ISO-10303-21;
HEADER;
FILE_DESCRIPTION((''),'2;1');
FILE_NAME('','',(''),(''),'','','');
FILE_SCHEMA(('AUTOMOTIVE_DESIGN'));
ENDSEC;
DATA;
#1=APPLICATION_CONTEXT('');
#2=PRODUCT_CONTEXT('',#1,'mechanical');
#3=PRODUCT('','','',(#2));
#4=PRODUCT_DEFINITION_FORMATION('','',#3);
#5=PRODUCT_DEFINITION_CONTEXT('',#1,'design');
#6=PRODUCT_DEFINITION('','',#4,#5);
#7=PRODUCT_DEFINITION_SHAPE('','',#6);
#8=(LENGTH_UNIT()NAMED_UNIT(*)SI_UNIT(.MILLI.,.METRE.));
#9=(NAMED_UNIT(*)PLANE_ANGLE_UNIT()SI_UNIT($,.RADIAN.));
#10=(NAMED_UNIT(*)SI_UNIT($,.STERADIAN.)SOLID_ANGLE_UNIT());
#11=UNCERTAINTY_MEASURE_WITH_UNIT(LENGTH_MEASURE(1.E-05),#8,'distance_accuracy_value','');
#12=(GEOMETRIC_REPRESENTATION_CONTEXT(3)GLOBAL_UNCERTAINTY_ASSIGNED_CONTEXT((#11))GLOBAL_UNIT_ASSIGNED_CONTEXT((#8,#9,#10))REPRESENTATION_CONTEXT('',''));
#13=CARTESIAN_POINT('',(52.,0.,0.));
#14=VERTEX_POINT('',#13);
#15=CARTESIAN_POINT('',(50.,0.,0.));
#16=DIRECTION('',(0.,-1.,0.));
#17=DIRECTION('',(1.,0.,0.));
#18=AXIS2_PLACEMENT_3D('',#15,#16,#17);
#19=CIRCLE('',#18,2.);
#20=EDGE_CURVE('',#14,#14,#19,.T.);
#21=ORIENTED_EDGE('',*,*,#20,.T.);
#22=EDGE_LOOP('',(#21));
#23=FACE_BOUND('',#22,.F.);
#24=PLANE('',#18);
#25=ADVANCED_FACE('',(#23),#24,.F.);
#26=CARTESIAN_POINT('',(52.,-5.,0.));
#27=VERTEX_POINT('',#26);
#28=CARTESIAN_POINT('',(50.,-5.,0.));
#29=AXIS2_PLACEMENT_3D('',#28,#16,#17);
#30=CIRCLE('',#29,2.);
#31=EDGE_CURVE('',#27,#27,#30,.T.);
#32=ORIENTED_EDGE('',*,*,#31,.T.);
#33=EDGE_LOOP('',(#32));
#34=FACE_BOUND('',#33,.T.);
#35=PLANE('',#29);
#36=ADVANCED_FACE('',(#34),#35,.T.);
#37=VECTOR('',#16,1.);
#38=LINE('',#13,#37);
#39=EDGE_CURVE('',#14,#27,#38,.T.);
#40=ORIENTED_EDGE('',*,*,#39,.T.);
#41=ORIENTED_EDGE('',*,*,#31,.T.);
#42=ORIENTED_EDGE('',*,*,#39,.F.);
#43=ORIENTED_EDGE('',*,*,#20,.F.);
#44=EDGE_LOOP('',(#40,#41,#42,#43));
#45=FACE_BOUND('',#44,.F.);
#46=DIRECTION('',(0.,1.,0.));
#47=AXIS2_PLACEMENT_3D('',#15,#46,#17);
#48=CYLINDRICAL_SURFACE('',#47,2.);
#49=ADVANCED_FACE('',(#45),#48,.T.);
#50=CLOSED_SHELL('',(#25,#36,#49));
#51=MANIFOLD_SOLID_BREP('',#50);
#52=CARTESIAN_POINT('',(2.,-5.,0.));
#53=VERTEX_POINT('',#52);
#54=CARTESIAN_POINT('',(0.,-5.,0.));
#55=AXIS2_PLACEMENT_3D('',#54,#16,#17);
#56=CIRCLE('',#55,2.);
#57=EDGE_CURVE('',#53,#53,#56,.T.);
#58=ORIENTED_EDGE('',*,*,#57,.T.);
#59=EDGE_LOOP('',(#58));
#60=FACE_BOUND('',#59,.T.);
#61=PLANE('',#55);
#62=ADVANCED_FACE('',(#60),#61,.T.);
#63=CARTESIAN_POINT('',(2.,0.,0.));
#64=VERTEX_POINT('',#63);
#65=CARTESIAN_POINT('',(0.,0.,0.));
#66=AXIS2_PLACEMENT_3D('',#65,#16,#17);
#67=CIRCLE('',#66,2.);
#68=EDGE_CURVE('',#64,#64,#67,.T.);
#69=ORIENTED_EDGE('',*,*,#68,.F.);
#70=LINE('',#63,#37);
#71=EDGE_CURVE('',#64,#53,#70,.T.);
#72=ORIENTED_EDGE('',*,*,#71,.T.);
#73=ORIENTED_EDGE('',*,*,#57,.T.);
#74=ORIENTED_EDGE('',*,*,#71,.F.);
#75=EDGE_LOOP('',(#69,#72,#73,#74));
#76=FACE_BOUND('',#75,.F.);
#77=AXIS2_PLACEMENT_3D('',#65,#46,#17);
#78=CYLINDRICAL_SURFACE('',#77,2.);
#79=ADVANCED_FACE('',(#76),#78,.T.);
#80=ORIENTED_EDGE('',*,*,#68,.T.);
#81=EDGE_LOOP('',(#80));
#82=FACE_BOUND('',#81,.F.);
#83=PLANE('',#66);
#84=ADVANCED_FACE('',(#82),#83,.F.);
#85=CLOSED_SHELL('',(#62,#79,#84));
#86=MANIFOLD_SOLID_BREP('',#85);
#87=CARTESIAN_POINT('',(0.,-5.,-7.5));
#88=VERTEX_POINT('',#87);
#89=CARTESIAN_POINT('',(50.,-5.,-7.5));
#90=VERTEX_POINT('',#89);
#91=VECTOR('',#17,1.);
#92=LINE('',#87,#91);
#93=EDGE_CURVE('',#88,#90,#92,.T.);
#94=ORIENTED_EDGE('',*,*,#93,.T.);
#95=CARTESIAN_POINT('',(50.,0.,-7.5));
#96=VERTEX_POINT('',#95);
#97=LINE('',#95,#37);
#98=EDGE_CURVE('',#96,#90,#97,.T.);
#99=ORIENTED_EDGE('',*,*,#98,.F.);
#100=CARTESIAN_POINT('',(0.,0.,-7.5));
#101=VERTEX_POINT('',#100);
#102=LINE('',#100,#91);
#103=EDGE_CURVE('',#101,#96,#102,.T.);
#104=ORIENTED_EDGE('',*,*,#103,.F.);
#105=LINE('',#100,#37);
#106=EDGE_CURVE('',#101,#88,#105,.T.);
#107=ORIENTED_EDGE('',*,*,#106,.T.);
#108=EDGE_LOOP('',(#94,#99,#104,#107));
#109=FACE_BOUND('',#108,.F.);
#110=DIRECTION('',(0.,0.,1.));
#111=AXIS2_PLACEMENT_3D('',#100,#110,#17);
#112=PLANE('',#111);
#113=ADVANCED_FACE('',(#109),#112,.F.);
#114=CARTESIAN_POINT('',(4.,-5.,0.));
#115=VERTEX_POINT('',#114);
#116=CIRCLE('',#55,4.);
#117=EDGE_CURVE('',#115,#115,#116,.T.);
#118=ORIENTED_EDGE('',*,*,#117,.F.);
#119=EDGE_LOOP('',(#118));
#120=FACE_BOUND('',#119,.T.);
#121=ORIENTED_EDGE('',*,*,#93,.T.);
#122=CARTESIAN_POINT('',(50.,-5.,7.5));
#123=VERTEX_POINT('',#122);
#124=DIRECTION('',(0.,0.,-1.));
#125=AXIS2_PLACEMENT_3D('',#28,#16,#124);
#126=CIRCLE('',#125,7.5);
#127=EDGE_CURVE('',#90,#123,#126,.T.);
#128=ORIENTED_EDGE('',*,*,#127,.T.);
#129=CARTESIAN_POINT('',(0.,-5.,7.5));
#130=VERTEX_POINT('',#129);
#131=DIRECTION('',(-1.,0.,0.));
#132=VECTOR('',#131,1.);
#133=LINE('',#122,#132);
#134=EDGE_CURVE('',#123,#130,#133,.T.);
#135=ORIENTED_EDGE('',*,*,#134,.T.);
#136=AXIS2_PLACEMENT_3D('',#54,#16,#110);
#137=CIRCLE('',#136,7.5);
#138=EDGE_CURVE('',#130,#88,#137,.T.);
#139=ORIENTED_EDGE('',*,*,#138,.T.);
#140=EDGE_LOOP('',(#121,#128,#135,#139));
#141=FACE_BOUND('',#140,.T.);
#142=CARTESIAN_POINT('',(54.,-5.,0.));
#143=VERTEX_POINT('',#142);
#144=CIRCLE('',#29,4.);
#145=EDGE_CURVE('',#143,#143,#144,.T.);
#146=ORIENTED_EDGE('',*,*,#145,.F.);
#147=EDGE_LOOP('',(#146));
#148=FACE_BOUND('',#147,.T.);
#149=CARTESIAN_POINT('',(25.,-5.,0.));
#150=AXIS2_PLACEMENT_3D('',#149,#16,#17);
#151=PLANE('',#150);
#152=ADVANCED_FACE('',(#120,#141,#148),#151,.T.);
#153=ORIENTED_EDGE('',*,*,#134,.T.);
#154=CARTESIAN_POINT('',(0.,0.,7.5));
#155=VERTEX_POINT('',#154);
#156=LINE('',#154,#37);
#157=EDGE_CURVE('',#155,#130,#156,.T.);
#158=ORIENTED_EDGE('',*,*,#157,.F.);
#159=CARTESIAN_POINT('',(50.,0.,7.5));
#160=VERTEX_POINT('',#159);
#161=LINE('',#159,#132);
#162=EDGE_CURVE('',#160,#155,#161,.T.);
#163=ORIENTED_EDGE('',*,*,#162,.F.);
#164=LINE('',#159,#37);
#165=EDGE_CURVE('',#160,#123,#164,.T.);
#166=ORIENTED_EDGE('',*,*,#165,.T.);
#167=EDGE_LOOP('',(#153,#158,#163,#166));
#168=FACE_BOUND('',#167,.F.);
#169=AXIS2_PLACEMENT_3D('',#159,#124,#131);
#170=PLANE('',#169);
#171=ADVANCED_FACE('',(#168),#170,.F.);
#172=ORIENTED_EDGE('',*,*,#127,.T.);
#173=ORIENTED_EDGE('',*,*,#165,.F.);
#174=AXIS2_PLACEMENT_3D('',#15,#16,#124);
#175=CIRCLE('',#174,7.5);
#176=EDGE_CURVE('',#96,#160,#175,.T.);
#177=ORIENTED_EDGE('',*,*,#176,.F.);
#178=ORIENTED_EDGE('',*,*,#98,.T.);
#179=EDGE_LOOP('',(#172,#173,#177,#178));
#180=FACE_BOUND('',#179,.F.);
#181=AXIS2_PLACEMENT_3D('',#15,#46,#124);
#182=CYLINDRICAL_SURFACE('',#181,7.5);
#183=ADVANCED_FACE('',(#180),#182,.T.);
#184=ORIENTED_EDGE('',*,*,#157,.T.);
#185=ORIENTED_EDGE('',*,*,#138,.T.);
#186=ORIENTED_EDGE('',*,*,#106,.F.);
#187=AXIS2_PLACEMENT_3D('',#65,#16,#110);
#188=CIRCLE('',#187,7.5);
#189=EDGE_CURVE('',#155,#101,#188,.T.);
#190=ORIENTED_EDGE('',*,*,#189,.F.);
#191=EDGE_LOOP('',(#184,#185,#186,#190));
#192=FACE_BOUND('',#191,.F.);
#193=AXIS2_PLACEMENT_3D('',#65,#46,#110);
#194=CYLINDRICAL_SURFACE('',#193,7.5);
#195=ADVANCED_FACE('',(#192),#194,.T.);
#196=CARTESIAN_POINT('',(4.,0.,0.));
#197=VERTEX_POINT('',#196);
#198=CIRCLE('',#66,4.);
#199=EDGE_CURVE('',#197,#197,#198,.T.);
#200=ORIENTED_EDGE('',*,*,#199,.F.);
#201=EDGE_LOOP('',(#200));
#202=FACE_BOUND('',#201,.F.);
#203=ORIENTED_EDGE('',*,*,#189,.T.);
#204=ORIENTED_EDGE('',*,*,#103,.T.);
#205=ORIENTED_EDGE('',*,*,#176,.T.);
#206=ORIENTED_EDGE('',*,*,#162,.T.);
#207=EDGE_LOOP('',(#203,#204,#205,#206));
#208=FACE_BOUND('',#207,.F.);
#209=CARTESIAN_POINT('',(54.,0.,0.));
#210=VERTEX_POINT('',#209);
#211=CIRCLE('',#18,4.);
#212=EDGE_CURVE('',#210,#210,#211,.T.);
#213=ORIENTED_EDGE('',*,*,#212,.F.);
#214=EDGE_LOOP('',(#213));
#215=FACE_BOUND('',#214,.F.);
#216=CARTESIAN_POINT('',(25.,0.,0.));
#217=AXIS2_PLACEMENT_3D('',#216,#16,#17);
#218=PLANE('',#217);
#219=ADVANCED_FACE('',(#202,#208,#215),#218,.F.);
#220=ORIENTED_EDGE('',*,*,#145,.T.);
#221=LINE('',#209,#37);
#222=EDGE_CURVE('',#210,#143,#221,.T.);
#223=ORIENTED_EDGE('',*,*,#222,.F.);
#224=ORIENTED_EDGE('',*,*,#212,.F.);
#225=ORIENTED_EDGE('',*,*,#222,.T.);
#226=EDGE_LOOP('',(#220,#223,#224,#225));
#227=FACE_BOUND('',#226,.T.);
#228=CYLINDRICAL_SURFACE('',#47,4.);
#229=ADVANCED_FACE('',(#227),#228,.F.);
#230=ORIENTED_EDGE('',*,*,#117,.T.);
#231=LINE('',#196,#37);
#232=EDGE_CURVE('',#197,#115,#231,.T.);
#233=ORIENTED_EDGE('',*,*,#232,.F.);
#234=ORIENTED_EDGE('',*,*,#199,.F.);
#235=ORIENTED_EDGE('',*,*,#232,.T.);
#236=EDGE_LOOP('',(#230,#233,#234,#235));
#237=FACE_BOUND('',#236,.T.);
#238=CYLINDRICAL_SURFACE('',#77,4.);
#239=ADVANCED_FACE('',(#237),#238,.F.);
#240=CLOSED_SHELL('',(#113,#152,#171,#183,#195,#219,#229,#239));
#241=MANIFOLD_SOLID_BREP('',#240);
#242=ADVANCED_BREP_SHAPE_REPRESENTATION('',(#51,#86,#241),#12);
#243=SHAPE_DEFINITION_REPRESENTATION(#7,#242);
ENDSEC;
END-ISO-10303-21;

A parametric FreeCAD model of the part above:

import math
import FreeCAD as App
import Part
import Sketcher
Q = App.Units.Quantity

doc = App.newDocument("Part")
body = doc.addObject("PartDesign::Body", "Body")

# Sketch on XZ plane
sketch1 = body.newObject("Sketcher::SketchObject", "Sketch")
sketch1.AttachmentSupport = (doc.getObject("XZ_Plane"), [""])
sketch1.MapMode = "FlatFace"
sketch1.addGeometry(Part.LineSegment(App.Vector(50, 7.5, 0), App.Vector(0, 7.5, 0)), False)
sketch1.addGeometry(Part.ArcOfCircle(Part.Circle(App.Vector(0, 0, 0), App.Vector(0, 0, 1), 7.5), math.radians(90), math.radians(270)), False)
sketch1.addGeometry(Part.LineSegment(App.Vector(0, -7.5, 0), App.Vector(50, -7.5, 0)), False)
sketch1.addGeometry(Part.ArcOfCircle(Part.Circle(App.Vector(50, 0, 0), App.Vector(0, 0, 1), 7.5), math.radians(-90), math.radians(90)), False)
sketch1.addGeometry(Part.Circle(App.Vector(0, 0, 0), App.Vector(0, 0, 1), 4), False)
sketch1.addGeometry(Part.Circle(App.Vector(50, 0, 0), App.Vector(0, 0, 1), 4), False)
sketch1.addConstraint(Sketcher.Constraint("Tangent", 0, 2, 1, 1))
sketch1.addConstraint(Sketcher.Constraint("Tangent", 1, 2, 2, 1))
sketch1.addConstraint(Sketcher.Constraint("Tangent", 2, 2, 3, 1))
sketch1.addConstraint(Sketcher.Constraint("Tangent", 3, 2, 0, 1))
sketch1.addConstraint(Sketcher.Constraint("Horizontal", 0))
sketch1.addConstraint(Sketcher.Constraint("Horizontal", 2))
sketch1.addConstraint(Sketcher.Constraint("Coincident", 1, 3, -1, 1))
sketch1.addConstraint(Sketcher.Constraint("Coincident", 4, 3, -1, 1))
sketch1.addConstraint(Sketcher.Constraint("Coincident", 5, 3, 3, 3))
sketch1.addConstraint(Sketcher.Constraint("Equal", 4, 5))
sketch1.addConstraint(Sketcher.Constraint("Diameter", 4, Q("8 mm")))
sketch1.addConstraint(Sketcher.Constraint("Radius", 1, Q("7.5 mm")))
sketch1.addConstraint(Sketcher.Constraint("DistanceX", 0, 2, 0, 1, Q("50 mm")))
pad1 = body.newObject("PartDesign::Pad", "Pad")
pad1.Profile = sketch1
pad1.Length = 5
body2 = doc.addObject("PartDesign::Body", "Body001")
body2.AllowCompound = True

# Sketch on XZ plane
sketch2 = body2.newObject("Sketcher::SketchObject", "Sketch001")
sketch2.AttachmentSupport = (doc.getObject("XZ_Plane001"), [""])
sketch2.MapMode = "FlatFace"
sketch2.addGeometry(Part.Circle(App.Vector(0, 0, 0), App.Vector(0, 0, 1), 2), False)
sketch2.addGeometry(Part.Circle(App.Vector(50, 0, 0), App.Vector(0, 0, 1), 2), False)
sketch2.addConstraint(Sketcher.Constraint("Coincident", 0, 3, -1, 1))
sketch2.addConstraint(Sketcher.Constraint("Equal", 0, 1))
sketch2.addConstraint(Sketcher.Constraint("PointOnObject", 1, 3, -1))
sketch2.addConstraint(Sketcher.Constraint("Diameter", 0, Q("4 mm")))
sketch2.addConstraint(Sketcher.Constraint("DistanceX", -1, 1, 1, 3, Q("50 mm")))
pad2 = body2.newObject("PartDesign::Pad", "Pad001")
pad2.Profile = sketch2
pad2.Length = 5

doc.recompute()
